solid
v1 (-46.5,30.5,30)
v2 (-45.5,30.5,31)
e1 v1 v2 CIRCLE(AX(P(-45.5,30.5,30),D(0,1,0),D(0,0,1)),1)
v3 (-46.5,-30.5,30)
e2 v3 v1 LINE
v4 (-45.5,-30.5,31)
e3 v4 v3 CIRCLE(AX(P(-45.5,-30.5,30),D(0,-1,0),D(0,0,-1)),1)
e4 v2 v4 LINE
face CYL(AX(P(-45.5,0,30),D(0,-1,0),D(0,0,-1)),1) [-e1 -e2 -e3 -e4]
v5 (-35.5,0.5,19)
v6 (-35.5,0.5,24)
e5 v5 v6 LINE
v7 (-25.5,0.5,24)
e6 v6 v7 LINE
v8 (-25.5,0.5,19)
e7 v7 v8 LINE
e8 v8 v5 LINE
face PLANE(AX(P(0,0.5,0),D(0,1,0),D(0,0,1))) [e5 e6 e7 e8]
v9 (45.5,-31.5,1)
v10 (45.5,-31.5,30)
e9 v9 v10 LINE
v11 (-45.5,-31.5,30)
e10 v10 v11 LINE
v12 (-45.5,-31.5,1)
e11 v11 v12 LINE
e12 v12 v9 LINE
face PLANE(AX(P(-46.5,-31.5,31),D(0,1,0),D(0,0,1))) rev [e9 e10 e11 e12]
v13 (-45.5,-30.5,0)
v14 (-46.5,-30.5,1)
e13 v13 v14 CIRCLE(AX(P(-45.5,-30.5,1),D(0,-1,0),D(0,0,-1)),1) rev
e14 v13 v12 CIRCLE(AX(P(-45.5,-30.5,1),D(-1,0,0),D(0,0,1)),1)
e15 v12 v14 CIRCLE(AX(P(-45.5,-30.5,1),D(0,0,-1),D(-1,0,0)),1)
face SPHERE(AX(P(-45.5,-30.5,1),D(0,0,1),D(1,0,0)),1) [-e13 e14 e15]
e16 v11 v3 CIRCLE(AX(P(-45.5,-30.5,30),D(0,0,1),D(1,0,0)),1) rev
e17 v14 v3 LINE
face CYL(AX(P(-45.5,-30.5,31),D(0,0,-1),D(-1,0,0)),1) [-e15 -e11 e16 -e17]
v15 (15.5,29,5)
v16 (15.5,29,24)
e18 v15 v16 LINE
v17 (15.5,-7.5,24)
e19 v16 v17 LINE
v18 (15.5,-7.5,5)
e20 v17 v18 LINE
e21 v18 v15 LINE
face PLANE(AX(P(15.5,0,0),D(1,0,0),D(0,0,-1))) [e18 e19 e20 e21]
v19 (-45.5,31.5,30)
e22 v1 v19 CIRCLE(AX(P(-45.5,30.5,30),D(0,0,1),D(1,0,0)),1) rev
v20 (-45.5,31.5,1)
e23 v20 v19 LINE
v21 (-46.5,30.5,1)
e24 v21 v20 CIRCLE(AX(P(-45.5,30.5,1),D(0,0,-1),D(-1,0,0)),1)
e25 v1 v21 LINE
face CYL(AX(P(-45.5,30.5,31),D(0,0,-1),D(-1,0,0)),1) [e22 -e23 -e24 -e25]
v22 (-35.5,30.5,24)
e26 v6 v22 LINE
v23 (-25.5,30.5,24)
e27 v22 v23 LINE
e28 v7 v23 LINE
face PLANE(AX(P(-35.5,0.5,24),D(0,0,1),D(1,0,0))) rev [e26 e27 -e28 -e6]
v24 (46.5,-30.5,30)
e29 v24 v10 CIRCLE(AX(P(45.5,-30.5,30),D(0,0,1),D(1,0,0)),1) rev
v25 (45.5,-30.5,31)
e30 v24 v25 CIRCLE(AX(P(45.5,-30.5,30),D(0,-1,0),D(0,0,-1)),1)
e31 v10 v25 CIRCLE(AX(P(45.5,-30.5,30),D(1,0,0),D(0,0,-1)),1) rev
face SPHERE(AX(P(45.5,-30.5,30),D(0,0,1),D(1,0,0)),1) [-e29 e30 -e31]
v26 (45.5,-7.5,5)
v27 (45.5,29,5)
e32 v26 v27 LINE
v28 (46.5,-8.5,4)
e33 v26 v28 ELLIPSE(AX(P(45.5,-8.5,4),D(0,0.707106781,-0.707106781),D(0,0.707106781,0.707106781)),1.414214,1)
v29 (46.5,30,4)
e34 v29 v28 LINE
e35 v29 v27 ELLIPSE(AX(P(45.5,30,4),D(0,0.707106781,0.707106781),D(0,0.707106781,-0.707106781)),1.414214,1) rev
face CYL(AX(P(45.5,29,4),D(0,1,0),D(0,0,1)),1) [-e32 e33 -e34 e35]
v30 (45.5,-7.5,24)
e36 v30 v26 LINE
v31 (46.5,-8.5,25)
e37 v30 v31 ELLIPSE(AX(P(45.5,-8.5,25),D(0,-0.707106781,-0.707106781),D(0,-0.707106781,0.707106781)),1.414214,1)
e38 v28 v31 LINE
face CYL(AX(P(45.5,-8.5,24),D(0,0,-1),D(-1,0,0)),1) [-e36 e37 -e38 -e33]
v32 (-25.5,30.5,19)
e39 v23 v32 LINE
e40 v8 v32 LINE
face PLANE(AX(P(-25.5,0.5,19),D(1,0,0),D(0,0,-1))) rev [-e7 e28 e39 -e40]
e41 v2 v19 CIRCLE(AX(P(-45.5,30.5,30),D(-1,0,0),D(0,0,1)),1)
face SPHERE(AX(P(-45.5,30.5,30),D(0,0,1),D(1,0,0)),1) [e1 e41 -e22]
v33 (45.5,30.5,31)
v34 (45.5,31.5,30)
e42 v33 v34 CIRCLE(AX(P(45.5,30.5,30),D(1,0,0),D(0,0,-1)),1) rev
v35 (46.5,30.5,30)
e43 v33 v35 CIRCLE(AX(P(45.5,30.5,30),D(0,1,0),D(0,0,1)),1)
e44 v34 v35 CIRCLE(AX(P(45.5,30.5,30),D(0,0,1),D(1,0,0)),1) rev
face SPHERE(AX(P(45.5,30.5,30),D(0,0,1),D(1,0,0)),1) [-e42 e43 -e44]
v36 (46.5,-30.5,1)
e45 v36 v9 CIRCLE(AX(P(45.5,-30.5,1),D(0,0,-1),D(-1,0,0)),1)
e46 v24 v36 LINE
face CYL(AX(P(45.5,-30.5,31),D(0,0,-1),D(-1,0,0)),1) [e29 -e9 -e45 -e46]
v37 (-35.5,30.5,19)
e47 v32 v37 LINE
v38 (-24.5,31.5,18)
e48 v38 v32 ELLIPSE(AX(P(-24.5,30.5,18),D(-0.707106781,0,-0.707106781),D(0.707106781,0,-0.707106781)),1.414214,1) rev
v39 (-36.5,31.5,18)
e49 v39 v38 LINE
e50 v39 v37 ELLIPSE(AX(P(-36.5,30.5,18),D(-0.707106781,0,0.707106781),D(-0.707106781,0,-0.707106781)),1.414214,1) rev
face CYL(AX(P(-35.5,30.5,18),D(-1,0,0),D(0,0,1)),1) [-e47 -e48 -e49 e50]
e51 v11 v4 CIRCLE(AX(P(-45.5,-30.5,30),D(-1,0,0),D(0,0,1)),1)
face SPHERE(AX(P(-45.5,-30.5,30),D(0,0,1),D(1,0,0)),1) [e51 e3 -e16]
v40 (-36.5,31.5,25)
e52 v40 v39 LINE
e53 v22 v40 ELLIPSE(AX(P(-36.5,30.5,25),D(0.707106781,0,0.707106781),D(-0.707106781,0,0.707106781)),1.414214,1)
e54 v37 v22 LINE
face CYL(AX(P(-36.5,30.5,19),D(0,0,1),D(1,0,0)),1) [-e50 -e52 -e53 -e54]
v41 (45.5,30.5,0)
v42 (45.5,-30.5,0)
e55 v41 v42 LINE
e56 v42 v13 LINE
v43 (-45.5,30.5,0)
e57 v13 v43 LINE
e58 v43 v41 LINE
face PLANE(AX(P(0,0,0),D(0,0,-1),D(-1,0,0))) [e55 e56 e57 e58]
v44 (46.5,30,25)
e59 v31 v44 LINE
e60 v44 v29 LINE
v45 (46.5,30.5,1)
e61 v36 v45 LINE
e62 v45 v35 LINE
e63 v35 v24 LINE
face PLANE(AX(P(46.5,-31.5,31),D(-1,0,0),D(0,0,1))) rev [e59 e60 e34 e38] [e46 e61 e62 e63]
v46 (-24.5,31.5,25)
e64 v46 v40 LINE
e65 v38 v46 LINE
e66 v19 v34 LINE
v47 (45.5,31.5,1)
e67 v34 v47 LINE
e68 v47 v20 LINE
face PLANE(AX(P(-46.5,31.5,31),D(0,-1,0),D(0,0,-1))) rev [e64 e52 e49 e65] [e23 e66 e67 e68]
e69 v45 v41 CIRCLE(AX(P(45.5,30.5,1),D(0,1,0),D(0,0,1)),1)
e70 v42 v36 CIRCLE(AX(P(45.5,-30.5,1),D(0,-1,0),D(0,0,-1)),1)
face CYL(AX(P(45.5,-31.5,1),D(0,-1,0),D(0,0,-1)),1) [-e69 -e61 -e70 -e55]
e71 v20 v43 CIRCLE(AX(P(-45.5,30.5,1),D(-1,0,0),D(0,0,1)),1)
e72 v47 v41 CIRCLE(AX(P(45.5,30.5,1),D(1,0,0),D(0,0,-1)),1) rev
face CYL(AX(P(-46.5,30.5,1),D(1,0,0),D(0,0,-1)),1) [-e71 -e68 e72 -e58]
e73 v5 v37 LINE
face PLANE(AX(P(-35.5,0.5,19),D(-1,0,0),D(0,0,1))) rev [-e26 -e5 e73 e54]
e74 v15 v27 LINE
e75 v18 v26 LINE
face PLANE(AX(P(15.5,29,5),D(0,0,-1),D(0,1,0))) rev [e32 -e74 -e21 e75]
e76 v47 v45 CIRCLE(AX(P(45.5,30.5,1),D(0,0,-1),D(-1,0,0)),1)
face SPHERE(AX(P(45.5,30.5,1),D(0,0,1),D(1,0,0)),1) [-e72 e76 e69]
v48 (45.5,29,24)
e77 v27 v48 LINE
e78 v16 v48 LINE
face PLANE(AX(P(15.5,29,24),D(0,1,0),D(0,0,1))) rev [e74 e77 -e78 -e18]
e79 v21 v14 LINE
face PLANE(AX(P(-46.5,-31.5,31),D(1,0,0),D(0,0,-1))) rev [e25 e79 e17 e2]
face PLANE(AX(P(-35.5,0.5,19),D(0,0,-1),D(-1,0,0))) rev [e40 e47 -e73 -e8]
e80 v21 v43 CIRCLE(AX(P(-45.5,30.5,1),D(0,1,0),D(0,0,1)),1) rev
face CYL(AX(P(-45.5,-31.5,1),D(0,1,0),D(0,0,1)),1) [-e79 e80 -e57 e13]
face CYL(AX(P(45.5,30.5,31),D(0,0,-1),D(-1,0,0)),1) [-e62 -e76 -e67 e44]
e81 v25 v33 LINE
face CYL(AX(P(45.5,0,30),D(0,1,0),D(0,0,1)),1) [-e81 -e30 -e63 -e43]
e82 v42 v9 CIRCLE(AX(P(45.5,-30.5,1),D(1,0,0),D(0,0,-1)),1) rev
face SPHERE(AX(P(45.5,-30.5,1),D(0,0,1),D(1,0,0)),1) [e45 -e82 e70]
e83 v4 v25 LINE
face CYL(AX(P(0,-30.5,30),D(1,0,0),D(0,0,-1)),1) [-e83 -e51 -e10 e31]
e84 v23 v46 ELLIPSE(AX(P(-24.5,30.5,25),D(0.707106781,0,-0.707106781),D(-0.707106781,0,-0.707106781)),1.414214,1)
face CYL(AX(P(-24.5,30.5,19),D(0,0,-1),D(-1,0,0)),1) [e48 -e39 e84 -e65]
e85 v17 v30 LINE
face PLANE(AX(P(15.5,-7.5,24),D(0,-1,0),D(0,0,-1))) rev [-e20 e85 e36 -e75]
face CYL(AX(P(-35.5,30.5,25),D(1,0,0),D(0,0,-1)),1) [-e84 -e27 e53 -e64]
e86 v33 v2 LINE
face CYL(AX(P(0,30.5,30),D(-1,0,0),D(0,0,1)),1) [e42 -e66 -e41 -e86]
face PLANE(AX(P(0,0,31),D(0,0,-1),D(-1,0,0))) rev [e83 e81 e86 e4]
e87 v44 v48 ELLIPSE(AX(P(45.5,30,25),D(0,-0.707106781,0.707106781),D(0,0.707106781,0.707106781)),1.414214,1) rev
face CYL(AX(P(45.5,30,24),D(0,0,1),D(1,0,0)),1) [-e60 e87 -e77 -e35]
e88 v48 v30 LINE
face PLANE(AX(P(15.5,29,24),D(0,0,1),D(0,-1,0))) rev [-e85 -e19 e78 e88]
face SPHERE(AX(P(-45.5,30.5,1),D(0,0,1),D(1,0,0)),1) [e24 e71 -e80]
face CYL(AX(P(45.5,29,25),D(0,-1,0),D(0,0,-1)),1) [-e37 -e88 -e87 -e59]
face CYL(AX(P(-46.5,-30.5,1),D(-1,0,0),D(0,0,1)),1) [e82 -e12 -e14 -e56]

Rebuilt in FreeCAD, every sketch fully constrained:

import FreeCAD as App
import Part
import Sketcher

V = App.Vector
Q = App.Units.Quantity


def edges_at(feature, points):
    """Names of the edges that pass closest to the given points."""
    edges = feature.Shape.Edges
    near = lambda p: min(range(len(edges)), key=lambda i: edges[i].distToShape(Part.Vertex(*p))[0])
    return sorted({f"Edge{near(p) + 1}" for p in points})

doc = App.newDocument("Part")
body = doc.addObject("PartDesign::Body", "Body")

# Sketch on XY plane
sketch1 = body.newObject("Sketcher::SketchObject", "Sketch")
sketch1.AttachmentSupport = (doc.getObject("XY_Plane"), [""])
sketch1.MapMode = "FlatFace"
sketch1.addGeometry([
    Part.LineSegment(V(-46, 32, 0), V(-46, -32, 0)),
    Part.LineSegment(V(-46, -32, 0), V(46, -32, 0)),
    Part.LineSegment(V(46, -32, 0), V(46, 32, 0)),
    Part.LineSegment(V(46, 32, 0), V(-46, 32, 0)),
], False)
sketch1.addConstraint([
    Sketcher.Constraint("Coincident", 0, 2, 1, 1),
    Sketcher.Constraint("Coincident", 1, 2, 2, 1),
    Sketcher.Constraint("Coincident", 2, 2, 3, 1),
    Sketcher.Constraint("Coincident", 3, 2, 0, 1),
    Sketcher.Constraint("Vertical", 0),
    Sketcher.Constraint("Horizontal", 1),
    Sketcher.Constraint("Vertical", 2),
    Sketcher.Constraint("Horizontal", 3),
    Sketcher.Constraint("Symmetric", 0, 2, 2, 2, -1, 1),
    Sketcher.Constraint("DistanceX", 1, 1, 1, 2, Q("93 mm")),
    Sketcher.Constraint("DistanceY", 0, 2, 0, 1, Q("63 mm")),
])
pad1 = body.newObject("PartDesign::Pad", "Pad")
pad1.Profile = sketch1
pad1.Length = 31

# Sketch on YZ plane
sketch2 = body.newObject("Sketcher::SketchObject", "Sketch001")
sketch2.AttachmentSupport = (doc.getObject("YZ_Plane"), [""])
sketch2.MapMode = "FlatFace"
sketch2.AttachmentOffset = App.Placement(V(0, 0, 46.5), App.Rotation())
sketch2.addGeometry([
    Part.LineSegment(V(29, 24, 0), V(-8, 24, 0)),
    Part.LineSegment(V(-8, 24, 0), V(-8, 5, 0)),
    Part.LineSegment(V(-8, 5, 0), V(29, 5, 0)),
    Part.LineSegment(V(29, 5, 0), V(29, 24, 0)),
], False)
sketch2.addConstraint([
    Sketcher.Constraint("Coincident", 0, 2, 1, 1),
    Sketcher.Constraint("Coincident", 1, 2, 2, 1),
    Sketcher.Constraint("Coincident", 2, 2, 3, 1),
    Sketcher.Constraint("Coincident", 3, 2, 0, 1),
    Sketcher.Constraint("Horizontal", 0),
    Sketcher.Constraint("Vertical", 1),
    Sketcher.Constraint("Horizontal", 2),
    Sketcher.Constraint("Vertical", 3),
    Sketcher.Constraint("DistanceY", 1, 2, 1, 1, Q("19 mm")),
    Sketcher.Constraint("DistanceX", 0, 2, 0, 1, Q("36.5 mm")),
    Sketcher.Constraint("DistanceY", -1, 1, 0, 2, Q("24 mm")),
    Sketcher.Constraint("DistanceX", -1, 1, 2, 2, Q("29 mm")),
])
pocket1 = body.newObject("PartDesign::Pocket", "Pocket")
pocket1.Profile = sketch2
pocket1.Length = 31

# Sketch on XZ plane
sketch3 = body.newObject("Sketcher::SketchObject", "Sketch002")
sketch3.AttachmentSupport = (doc.getObject("XZ_Plane"), [""])
sketch3.MapMode = "FlatFace"
sketch3.AttachmentOffset = App.Placement(V(0, 0, -31.5), App.Rotation())
sketch3.addGeometry([
    Part.LineSegment(V(-36, 19, 0), V(-36, 24, 0)),
    Part.LineSegment(V(-36, 24, 0), V(-26, 24, 0)),
    Part.LineSegment(V(-26, 24, 0), V(-26, 19, 0)),
    Part.LineSegment(V(-26, 19, 0), V(-36, 19, 0)),
], False)
sketch3.addConstraint([
    Sketcher.Constraint("Coincident", 0, 2, 1, 1),
    Sketcher.Constraint("Coincident", 1, 2, 2, 1),
    Sketcher.Constraint("Coincident", 2, 2, 3, 1),
    Sketcher.Constraint("Coincident", 3, 2, 0, 1),
    Sketcher.Constraint("Vertical", 0),
    Sketcher.Constraint("Horizontal", 1),
    Sketcher.Constraint("Vertical", 2),
    Sketcher.Constraint("Horizontal", 3),
    Sketcher.Constraint("DistanceX", 1, 1, 1, 2, Q("10 mm")),
    Sketcher.Constraint("DistanceY", 0, 1, 0, 2, Q("5 mm")),
    Sketcher.Constraint("DistanceY", -1, 1, 0, 2, Q("24 mm")),
    Sketcher.Constraint("DistanceX", 0, 2, -1, 1, Q("35.5 mm")),
])
pocket2 = body.newObject("PartDesign::Pocket", "Pocket001")
pocket2.Profile = sketch3
pocket2.Length = 31
pocket2.Reversed = True
doc.recompute()

fillet = body.newObject("PartDesign::Fillet", "Fillet")
fillet.Base = (pocket2, edges_at(pocket2, [
    (-46.5, 0, 31),
    (0, -31.5, 31),
    (46.5, 10.75, 24),
    (46.5, -7.5, 14.5),
    (46.5, 10.75, 5),
    (46.5, 29, 14.5),
    (-35.5, 31.5, 21.5),
    (-30.5, 31.5, 24),
    (-25.5, 31.5, 21.5),
    (-30.5, 31.5, 19),
    (46.5, 0, 31),
    (0, -31.5, 0),
    (-46.5, 0, 0),
    (0, 31.5, 0),
    (46.5, 0, 0),
    (46.5, -31.5, 15.5),
    (-46.5, -31.5, 15.5),
    (-46.5, 31.5, 15.5),
    (46.5, 31.5, 15.5),
    (0, 31.5, 31),
]))
fillet.Radius = 1

doc.recompute()
